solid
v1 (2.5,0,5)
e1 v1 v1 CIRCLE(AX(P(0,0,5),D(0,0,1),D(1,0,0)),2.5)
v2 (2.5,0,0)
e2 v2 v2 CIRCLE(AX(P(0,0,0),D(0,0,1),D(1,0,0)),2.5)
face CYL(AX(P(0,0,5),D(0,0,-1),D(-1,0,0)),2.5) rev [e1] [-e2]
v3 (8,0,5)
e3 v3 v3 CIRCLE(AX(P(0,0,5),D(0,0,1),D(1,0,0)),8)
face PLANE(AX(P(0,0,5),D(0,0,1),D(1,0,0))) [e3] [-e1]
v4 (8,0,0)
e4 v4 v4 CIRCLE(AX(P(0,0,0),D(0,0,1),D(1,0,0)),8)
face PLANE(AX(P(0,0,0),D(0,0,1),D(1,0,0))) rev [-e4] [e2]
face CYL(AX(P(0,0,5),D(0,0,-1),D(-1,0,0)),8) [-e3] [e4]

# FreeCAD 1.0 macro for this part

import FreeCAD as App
import Part
import Sketcher

doc = App.newDocument("Part")
params = doc.addObject("Spreadsheet::Sheet", "Params")
for row, (alias, value) in enumerate([
    ("sketch1_diameter", "16 mm"),
    ("sketch1_diameter2", "5 mm"),
    ("pad1_length", "5 mm"),
], start=1):
    params.set(f"A{row}", alias)
    params.set(f"B{row}", "=" + value)
    params.setAlias(f"B{row}", alias)

body = doc.addObject("PartDesign::Body", "Body")

# Sketch on XY plane
sketch1 = doc.addObject("Sketcher::SketchObject", "Sketch")
body.addObject(sketch1)
sketch1.AttachmentSupport = (doc.XY_Plane, [""])
sketch1.MapMode = "FlatFace"
sketch1.addGeometry([
    Part.Circle(App.Vector(0, 0, 0), App.Vector(0, 0, 1), 8),
    Part.Circle(App.Vector(0, 0, 0), App.Vector(0, 0, 1), 2.5),
], False)
sketch1.addConstraint([
    Sketcher.Constraint("Coincident", 0, 3, -1, 1),
    Sketcher.Constraint("Coincident", 1, 3, -1, 1),
    Sketcher.Constraint("Diameter", 0, 16.0),
    Sketcher.Constraint("Diameter", 1, 5.0),
])
sketch1.setExpression("Constraints[2]", "Params.sketch1_diameter")
sketch1.setExpression("Constraints[3]", "Params.sketch1_diameter2")
pad1 = doc.addObject("PartDesign::Pad", "Pad")
body.addObject(pad1)
pad1.Profile = sketch1
pad1.setExpression("Length", "Params.pad1_length")

doc.recompute()
